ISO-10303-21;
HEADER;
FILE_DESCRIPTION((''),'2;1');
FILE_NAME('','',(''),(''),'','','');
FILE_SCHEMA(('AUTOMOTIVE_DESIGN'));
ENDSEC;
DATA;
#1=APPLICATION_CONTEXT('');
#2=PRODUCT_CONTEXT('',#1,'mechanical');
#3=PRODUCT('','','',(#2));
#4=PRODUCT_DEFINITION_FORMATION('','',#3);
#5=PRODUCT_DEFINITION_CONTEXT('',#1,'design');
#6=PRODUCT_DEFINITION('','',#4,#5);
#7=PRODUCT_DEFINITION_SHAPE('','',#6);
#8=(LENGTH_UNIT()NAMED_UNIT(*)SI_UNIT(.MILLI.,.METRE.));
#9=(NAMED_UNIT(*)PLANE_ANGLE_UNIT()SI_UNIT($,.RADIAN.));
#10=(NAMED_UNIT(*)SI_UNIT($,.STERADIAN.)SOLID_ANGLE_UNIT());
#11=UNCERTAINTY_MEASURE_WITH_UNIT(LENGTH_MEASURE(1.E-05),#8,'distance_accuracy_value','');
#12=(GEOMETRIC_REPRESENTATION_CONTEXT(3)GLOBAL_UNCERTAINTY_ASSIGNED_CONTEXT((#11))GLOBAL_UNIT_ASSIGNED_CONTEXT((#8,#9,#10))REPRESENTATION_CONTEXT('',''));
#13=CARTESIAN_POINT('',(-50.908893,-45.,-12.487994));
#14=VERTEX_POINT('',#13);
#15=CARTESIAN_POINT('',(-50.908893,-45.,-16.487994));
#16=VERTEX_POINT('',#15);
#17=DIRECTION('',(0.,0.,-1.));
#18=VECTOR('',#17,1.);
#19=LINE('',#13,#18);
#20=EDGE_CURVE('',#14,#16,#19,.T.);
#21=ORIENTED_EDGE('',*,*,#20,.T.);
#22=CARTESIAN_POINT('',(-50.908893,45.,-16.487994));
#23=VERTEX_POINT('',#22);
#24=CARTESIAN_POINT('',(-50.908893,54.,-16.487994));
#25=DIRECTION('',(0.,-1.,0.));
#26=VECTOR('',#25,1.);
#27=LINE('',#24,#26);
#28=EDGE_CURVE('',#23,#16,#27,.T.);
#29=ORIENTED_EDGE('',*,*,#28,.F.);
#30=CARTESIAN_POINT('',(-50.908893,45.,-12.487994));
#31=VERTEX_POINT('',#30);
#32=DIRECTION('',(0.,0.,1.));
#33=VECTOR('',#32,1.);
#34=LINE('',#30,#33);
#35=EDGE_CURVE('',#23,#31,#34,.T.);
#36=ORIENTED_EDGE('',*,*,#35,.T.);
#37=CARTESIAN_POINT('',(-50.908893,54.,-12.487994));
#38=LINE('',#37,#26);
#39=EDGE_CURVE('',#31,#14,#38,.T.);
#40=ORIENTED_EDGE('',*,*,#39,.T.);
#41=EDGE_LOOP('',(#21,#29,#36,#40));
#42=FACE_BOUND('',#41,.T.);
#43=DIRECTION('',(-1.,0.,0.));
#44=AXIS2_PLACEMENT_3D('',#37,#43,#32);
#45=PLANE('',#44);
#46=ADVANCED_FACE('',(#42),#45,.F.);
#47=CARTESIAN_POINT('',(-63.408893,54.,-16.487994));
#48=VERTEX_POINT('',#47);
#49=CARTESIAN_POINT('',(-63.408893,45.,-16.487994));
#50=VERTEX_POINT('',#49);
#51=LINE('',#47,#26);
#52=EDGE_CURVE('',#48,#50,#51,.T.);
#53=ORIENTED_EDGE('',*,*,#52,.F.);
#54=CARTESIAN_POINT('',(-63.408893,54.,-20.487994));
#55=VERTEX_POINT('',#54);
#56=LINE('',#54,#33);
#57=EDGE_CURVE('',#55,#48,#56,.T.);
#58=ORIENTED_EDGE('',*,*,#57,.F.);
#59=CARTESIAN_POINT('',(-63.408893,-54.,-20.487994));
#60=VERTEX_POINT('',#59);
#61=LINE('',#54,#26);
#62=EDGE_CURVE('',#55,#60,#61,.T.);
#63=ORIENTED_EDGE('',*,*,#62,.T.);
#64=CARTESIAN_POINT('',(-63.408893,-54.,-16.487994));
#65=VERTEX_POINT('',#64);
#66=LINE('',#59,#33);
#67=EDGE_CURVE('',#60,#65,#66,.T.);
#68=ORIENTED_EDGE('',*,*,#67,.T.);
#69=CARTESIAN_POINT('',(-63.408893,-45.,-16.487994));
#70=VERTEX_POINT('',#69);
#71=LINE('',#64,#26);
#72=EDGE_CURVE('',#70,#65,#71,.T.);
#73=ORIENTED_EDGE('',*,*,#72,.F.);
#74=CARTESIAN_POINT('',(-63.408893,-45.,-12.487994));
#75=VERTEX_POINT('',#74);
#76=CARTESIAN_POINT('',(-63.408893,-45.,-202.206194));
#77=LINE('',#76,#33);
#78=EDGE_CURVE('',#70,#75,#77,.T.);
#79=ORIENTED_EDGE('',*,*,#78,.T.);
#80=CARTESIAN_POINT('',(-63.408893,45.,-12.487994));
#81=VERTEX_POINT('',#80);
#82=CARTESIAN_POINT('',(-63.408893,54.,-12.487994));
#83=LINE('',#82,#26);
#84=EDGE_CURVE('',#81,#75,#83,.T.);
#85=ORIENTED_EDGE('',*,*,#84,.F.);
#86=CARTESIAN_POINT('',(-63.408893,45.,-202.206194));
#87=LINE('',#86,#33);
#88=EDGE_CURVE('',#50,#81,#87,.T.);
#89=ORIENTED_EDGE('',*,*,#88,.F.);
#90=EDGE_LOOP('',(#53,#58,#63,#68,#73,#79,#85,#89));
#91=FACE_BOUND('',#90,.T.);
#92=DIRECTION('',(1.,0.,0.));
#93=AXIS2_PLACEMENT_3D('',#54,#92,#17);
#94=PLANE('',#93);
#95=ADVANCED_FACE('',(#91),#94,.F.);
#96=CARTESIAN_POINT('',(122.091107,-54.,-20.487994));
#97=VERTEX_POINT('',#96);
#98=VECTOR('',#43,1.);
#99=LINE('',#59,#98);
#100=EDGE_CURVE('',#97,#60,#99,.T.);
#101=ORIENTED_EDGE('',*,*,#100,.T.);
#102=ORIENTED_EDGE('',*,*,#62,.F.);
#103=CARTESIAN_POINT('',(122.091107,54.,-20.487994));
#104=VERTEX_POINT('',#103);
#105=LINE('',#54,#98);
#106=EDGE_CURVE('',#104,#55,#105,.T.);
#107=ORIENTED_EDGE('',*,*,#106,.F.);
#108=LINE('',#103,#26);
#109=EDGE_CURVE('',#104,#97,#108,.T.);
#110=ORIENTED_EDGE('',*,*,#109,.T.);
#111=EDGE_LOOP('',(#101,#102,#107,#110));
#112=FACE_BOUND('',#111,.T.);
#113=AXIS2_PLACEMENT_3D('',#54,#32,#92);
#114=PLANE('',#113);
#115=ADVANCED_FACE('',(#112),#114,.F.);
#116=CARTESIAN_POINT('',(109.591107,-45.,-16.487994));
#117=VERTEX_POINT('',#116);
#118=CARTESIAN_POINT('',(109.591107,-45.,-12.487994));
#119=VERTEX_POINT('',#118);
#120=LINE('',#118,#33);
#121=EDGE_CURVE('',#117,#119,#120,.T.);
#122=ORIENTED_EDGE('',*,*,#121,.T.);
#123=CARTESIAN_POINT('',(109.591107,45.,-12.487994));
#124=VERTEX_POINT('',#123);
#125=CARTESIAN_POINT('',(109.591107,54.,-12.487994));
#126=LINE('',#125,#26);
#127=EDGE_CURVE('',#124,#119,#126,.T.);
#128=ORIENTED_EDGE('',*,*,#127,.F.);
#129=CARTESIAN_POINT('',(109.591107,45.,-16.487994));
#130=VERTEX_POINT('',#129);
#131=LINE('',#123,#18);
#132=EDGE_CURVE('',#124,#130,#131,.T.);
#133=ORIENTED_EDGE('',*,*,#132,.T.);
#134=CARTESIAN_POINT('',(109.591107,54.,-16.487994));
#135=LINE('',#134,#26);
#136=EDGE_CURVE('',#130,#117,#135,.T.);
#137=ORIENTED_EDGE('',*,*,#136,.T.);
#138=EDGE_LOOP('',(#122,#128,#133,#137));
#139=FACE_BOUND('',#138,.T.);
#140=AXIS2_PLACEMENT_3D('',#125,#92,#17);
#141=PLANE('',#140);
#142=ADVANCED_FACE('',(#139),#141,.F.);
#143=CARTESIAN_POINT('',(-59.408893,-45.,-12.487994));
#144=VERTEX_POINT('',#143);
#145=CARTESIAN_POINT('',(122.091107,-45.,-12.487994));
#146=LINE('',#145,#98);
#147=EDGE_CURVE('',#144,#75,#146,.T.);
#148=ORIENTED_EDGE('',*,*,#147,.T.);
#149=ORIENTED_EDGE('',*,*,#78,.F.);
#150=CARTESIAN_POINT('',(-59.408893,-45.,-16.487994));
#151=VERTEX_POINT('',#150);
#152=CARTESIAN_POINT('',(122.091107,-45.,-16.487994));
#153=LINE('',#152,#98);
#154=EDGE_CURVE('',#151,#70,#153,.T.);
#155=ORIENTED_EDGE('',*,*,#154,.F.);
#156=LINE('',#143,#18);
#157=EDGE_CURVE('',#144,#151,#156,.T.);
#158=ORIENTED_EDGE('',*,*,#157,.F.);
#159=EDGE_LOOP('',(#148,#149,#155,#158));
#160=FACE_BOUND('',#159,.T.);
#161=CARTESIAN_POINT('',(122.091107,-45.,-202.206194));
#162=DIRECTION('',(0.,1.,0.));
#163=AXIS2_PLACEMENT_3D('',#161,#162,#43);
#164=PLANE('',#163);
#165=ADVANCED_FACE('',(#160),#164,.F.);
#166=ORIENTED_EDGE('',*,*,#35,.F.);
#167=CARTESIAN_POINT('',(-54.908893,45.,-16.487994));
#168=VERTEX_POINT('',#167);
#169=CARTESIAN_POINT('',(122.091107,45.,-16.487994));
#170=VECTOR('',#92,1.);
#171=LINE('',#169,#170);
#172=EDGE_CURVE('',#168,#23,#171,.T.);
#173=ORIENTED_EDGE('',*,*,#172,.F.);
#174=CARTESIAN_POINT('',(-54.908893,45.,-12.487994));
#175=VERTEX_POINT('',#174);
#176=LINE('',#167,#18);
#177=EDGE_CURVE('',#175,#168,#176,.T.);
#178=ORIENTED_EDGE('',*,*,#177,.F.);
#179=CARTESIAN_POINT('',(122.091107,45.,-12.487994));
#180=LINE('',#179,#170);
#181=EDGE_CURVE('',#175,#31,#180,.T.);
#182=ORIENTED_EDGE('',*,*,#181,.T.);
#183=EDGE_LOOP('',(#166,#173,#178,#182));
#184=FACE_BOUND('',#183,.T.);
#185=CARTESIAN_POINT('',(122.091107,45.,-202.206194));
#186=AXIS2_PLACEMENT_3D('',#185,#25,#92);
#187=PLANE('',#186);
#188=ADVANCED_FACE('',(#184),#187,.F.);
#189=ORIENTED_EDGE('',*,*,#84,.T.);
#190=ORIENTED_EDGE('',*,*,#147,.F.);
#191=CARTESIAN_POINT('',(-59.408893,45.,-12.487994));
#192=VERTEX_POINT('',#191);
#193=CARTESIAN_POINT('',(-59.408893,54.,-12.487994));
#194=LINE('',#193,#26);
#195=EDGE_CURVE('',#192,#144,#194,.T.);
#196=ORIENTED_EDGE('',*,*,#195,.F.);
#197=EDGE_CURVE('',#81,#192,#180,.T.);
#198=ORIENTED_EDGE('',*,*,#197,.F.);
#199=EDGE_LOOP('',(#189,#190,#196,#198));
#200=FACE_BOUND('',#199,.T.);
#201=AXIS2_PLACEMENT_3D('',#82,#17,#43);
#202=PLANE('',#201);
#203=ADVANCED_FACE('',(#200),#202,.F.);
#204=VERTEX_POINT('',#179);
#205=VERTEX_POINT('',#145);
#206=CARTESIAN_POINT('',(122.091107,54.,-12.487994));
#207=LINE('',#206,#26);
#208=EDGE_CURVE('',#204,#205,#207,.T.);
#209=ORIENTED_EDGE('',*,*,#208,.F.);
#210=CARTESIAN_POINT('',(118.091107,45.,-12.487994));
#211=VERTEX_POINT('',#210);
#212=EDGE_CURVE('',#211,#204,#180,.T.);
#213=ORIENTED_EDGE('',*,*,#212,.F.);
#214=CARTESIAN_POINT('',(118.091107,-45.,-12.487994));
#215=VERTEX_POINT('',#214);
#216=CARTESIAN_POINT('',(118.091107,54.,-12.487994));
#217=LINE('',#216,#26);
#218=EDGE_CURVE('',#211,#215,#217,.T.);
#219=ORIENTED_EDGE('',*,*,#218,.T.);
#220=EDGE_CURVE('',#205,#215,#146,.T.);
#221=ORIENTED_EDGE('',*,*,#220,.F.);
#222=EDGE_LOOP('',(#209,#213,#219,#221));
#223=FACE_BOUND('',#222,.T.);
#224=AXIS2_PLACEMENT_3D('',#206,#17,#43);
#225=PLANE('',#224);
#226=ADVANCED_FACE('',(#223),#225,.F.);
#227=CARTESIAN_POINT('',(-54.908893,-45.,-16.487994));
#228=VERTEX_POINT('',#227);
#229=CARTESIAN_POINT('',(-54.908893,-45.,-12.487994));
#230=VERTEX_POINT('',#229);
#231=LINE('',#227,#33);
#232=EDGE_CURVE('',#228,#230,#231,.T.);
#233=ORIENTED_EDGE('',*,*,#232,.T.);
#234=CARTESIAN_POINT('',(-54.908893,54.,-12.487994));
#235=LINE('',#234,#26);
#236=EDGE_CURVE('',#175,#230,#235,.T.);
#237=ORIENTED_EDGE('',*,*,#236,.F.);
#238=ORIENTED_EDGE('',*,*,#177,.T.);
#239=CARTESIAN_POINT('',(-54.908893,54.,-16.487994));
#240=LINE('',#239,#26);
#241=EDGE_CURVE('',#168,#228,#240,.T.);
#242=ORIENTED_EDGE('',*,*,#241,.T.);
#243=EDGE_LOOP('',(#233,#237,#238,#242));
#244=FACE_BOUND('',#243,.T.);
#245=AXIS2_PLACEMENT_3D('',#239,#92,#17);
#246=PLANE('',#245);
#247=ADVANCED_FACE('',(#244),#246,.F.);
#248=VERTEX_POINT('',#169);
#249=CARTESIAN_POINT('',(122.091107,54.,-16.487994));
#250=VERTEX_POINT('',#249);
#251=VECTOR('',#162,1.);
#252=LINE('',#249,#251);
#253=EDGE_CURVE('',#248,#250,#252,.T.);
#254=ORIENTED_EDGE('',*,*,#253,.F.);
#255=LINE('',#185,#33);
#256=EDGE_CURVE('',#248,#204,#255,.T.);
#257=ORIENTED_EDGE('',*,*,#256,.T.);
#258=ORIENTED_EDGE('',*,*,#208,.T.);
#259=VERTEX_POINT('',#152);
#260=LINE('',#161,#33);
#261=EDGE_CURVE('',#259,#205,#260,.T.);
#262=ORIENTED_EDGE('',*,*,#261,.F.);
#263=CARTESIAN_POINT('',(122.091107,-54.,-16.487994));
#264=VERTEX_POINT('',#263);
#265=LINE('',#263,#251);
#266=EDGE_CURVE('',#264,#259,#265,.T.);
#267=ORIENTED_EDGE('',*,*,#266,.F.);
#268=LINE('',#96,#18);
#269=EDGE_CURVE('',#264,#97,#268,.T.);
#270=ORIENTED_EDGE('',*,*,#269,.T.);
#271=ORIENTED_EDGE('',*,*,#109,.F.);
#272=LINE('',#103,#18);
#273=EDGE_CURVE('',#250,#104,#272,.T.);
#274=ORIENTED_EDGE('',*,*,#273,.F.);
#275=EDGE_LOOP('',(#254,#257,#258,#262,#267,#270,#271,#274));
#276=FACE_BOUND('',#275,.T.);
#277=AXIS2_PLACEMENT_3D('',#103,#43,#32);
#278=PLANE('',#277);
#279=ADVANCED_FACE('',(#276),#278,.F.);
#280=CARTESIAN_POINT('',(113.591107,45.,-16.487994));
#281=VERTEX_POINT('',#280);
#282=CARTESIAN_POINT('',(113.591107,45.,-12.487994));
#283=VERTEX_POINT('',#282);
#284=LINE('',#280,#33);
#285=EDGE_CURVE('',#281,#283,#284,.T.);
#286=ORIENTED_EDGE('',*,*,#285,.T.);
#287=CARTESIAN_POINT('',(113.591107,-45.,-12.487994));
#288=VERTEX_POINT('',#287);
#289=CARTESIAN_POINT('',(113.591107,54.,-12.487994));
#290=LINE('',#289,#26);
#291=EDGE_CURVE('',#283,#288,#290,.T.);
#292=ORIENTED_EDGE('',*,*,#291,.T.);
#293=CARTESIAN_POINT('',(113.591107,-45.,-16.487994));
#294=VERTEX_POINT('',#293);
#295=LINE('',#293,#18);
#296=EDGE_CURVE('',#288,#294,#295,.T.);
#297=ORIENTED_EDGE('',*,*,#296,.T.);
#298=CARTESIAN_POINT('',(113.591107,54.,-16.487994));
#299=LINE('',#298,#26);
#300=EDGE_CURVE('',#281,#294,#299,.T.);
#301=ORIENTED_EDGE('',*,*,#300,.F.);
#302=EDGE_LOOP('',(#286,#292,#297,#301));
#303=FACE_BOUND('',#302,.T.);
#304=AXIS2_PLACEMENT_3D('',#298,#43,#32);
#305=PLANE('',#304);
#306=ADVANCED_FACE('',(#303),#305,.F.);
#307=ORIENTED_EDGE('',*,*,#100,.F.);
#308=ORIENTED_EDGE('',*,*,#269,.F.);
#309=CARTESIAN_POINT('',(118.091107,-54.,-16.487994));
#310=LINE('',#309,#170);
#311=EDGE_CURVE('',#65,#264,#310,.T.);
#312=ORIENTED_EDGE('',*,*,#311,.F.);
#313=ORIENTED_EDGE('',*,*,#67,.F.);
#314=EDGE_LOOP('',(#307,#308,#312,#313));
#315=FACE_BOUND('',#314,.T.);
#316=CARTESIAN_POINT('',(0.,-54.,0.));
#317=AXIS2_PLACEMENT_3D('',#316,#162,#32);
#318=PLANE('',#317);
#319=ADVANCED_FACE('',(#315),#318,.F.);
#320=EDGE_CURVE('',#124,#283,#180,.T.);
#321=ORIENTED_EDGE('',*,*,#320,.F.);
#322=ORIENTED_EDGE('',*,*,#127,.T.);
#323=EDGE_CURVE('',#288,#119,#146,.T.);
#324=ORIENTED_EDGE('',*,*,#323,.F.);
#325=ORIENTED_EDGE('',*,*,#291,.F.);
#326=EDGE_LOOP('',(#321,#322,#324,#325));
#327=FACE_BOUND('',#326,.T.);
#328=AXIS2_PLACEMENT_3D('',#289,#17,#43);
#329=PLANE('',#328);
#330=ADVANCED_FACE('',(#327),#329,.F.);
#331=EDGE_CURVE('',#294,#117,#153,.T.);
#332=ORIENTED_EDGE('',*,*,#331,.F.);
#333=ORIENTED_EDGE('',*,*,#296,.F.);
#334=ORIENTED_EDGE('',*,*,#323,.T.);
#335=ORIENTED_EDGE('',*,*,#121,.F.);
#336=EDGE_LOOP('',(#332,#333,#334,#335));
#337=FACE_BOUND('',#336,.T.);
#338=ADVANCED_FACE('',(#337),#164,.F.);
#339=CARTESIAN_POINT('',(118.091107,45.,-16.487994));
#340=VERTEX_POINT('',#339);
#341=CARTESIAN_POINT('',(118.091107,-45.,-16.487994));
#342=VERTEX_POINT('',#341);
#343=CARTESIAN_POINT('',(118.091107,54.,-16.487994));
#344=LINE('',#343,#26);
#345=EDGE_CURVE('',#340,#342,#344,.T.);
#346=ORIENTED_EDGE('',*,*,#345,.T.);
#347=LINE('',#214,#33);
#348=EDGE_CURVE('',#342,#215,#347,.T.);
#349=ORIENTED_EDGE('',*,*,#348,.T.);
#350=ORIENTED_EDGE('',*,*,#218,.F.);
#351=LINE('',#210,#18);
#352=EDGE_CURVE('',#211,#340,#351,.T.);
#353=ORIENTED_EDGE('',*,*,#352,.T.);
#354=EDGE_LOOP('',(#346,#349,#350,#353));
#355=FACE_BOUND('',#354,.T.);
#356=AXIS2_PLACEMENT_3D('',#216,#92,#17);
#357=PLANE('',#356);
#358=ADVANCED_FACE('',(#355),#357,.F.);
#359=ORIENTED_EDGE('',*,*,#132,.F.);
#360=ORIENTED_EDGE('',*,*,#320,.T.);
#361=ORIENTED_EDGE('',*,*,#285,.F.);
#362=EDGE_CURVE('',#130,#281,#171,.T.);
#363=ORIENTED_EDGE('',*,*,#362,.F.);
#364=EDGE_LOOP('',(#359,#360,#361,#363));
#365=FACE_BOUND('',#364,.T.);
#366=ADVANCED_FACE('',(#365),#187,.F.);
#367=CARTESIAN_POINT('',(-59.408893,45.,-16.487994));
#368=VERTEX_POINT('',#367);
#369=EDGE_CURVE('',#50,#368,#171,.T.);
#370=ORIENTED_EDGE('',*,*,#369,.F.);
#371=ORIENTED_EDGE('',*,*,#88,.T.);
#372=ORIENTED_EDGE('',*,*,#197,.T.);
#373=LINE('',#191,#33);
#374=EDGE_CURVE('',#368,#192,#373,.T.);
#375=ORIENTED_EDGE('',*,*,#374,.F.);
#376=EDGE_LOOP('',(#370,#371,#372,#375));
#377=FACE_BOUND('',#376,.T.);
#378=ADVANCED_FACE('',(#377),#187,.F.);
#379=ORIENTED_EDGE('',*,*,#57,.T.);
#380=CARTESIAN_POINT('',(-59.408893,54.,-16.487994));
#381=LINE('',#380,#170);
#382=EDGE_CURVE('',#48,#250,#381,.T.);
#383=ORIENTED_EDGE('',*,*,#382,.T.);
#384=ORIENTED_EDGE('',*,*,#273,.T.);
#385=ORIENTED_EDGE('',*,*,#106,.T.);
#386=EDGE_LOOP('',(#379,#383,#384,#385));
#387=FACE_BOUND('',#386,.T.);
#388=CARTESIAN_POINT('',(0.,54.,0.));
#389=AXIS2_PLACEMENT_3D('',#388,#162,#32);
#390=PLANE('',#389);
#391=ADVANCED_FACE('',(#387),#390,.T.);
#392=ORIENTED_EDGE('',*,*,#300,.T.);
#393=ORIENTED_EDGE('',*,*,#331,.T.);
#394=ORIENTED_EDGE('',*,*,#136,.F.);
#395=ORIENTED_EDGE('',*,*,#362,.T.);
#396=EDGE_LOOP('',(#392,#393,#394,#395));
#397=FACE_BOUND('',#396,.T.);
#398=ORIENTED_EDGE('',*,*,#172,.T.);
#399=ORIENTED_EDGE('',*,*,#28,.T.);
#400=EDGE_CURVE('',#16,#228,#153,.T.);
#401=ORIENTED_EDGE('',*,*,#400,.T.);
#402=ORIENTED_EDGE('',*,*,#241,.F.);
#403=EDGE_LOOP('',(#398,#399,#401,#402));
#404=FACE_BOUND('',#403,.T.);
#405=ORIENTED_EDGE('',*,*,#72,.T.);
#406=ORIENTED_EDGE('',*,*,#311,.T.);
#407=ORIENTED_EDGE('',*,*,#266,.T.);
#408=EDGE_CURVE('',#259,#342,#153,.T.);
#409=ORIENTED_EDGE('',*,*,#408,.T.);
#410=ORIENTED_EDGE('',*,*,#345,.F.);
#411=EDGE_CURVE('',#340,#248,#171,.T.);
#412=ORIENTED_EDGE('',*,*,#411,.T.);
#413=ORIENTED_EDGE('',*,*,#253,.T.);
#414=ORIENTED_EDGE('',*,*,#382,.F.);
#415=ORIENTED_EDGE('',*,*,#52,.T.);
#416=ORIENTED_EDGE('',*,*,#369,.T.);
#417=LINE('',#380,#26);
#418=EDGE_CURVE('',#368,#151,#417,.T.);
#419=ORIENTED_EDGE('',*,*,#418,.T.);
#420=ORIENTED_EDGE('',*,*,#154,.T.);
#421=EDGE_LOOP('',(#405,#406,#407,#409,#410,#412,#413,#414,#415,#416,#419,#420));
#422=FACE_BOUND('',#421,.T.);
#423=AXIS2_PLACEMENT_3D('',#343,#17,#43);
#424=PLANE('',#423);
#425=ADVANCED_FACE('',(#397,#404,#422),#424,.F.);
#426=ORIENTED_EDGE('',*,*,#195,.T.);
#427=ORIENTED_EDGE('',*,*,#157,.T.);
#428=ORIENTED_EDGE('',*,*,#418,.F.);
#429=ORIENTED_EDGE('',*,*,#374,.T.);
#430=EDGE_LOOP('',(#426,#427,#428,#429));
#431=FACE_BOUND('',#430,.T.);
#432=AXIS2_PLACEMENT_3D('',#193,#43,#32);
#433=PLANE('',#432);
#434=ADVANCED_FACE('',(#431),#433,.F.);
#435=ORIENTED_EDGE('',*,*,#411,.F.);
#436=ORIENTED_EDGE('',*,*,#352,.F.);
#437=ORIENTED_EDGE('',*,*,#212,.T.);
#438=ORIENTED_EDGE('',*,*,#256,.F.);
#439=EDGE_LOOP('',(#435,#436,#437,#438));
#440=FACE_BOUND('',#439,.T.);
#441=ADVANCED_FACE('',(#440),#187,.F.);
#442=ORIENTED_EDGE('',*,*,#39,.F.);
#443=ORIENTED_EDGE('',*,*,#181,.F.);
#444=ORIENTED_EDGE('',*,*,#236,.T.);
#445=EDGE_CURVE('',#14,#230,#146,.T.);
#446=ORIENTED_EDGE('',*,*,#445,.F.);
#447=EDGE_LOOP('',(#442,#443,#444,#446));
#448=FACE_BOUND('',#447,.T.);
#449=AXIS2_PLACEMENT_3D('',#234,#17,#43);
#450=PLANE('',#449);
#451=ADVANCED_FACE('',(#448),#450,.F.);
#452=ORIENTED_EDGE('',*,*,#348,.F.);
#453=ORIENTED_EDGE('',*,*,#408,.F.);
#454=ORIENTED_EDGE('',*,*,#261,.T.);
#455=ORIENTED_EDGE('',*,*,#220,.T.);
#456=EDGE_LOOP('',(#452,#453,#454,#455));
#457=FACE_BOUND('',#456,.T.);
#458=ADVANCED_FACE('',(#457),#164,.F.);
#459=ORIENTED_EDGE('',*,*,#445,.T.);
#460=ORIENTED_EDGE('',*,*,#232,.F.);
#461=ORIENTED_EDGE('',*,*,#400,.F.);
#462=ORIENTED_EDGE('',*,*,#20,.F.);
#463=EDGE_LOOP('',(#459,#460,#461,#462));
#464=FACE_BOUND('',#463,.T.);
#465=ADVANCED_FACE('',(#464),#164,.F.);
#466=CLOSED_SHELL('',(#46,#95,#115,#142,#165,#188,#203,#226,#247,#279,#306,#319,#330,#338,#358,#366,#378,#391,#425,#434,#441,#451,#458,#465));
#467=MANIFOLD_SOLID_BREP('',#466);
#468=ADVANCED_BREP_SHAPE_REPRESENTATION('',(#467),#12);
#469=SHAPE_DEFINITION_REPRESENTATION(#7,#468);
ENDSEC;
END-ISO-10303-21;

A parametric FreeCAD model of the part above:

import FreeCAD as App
import Part
import Sketcher
from FreeCAD import Vector


def add_polygon(sketch, points):
    """Adds a closed chain of lines whose ends are joined by coincident constraints."""
    first, n = sketch.GeometryCount, len(points)
    for a, b in zip(points, points[1:] + points[:1]):
        sketch.addGeometry(Part.LineSegment(App.Vector(*a, 0), App.Vector(*b, 0)), False)
    for i in range(n):
        sketch.addConstraint(Sketcher.Constraint("Coincident", first + i, 2, first + (i + 1) % n, 1))

doc = App.newDocument("Part")
body = doc.addObject("PartDesign::Body", "Body")

# Sketch on XZ plane
sketch1 = doc.addObject("Sketcher::SketchObject", "Sketch")
body.addObject(sketch1)
sketch1.AttachmentSupport = (doc.XZ_Plane, [""])
sketch1.MapMode = "FlatFace"
add_polygon(sketch1, [(122.091107, -20.487994), (-63.408893, -20.487994), (-63.408893, -12.487994), (-59.408893, -12.487994), (-59.408893, -16.487994), (-54.908893, -16.487994), (-54.908893, -12.487994), (-50.908893, -12.487994), (-50.908893, -16.487994), (109.591107, -16.487994), (109.591107, -12.487994), (113.591107, -12.487994), (113.591107, -16.487994), (118.091107, -16.487994), (118.091107, -12.487994), (122.091107, -12.487994)])  # lines 0-15
sketch1.addConstraint([
    Sketcher.Constraint("Horizontal", 0),
    Sketcher.Constraint("Vertical", 1),
    Sketcher.Constraint("Horizontal", 2),
    Sketcher.Constraint("Vertical", 3),
    Sketcher.Constraint("Horizontal", 4),
    Sketcher.Constraint("Vertical", 5),
    Sketcher.Constraint("Horizontal", 6),
    Sketcher.Constraint("Vertical", 7),
    Sketcher.Constraint("Horizontal", 8),
    Sketcher.Constraint("Vertical", 9),
    Sketcher.Constraint("Horizontal", 10),
    Sketcher.Constraint("Vertical", 11),
    Sketcher.Constraint("Horizontal", 12),
    Sketcher.Constraint("Vertical", 13),
    Sketcher.Constraint("Horizontal", 14),
    Sketcher.Constraint("Vertical", 15),
    Sketcher.Constraint("Horizontal", 2, 2, 5, 2),
    Sketcher.Constraint("Horizontal", 4, 2, 7, 2),
    Sketcher.Constraint("Horizontal", 6, 2, 9, 2),
    Sketcher.Constraint("Horizontal", 8, 2, 11, 2),
    Sketcher.Constraint("Horizontal", 10, 2, 13, 2),
    Sketcher.Constraint("Equal", 2, 6),
    Sketcher.Constraint("Equal", 6, 10),
    Sketcher.Constraint("Equal", 4, 12),
    Sketcher.Constraint("Equal", 10, 14),
    Sketcher.Constraint("Equal", 14, 3),
    Sketcher.Constraint("DistanceX", 2, 1, 2, 2, 4.0),
    Sketcher.Constraint("DistanceY", 1, 1, 1, 2, 8.0),
    Sketcher.Constraint("DistanceX", 0, 2, 0, 1, 185.5),
    Sketcher.Constraint("DistanceX", 4, 1, 4, 2, 4.5),
    Sketcher.Constraint("DistanceX", 0, 2, -1, 1, 63.408893),
    Sketcher.Constraint("DistanceY", 0, 2, -1, 1, 20.487994),
])
pad1 = doc.addObject("PartDesign::Pad", "Pad")
body.addObject(pad1)
pad1.Profile = sketch1
pad1.Length = 108
pad1.Midplane = True

# Sketch on XY plane
sketch2 = doc.addObject("Sketcher::SketchObject", "Sketch001")
body.addObject(sketch2)
sketch2.AttachmentSupport = (doc.XY_Plane, [""])
sketch2.MapMode = "FlatFace"
sketch2.AttachmentOffset = App.Placement(Vector(0, 0, -12.487994), App.Rotation())
add_polygon(sketch2, [(-63.408893, 54), (-63.408893, 45), (122.091107, 45), (122.091107, 54)])  # lines 0-3
sketch2.addConstraint([
    Sketcher.Constraint("Vertical", 0),
    Sketcher.Constraint("Horizontal", 1),
    Sketcher.Constraint("Vertical", 2),
    Sketcher.Constraint("Horizontal", 3),
    Sketcher.Constraint("DistanceY", 0, 2, 0, 1, 9.0),
    Sketcher.Constraint("DistanceX", 1, 1, 1, 2, 185.5),
    Sketcher.Constraint("DistanceY", -1, 1, 0, 2, 45.0),
    Sketcher.Constraint("DistanceX", 0, 2, -1, 1, 63.408893),
])
pocket1 = doc.addObject("PartDesign::Pocket", "Pocket")
body.addObject(pocket1)
pocket1.Profile = sketch2
pocket1.Length = 4

# Sketch on XY plane
sketch3 = doc.addObject("Sketcher::SketchObject", "Sketch002")
body.addObject(sketch3)
sketch3.AttachmentSupport = (doc.XY_Plane, [""])
sketch3.MapMode = "FlatFace"
sketch3.AttachmentOffset = App.Placement(Vector(0, 0, -12.487994), App.Rotation())
add_polygon(sketch3, [(-63.408893, -45), (-63.408893, -54), (122.091107, -54), (122.091107, -45)])  # lines 0-3
sketch3.addConstraint([
    Sketcher.Constraint("Vertical", 0),
    Sketcher.Constraint("Horizontal", 1),
    Sketcher.Constraint("Vertical", 2),
    Sketcher.Constraint("Horizontal", 3),
    Sketcher.Constraint("DistanceY", 0, 2, 0, 1, 9.0),
    Sketcher.Constraint("DistanceX", 1, 1, 1, 2, 185.5),
    Sketcher.Constraint("DistanceY", 0, 2, -1, 1, 54.0),
    Sketcher.Constraint("DistanceX", 0, 2, -1, 1, 63.408893),
])
pocket2 = doc.addObject("PartDesign::Pocket", "Pocket001")
body.addObject(pocket2)
pocket2.Profile = sketch3
pocket2.Length = 4

doc.recompute()
